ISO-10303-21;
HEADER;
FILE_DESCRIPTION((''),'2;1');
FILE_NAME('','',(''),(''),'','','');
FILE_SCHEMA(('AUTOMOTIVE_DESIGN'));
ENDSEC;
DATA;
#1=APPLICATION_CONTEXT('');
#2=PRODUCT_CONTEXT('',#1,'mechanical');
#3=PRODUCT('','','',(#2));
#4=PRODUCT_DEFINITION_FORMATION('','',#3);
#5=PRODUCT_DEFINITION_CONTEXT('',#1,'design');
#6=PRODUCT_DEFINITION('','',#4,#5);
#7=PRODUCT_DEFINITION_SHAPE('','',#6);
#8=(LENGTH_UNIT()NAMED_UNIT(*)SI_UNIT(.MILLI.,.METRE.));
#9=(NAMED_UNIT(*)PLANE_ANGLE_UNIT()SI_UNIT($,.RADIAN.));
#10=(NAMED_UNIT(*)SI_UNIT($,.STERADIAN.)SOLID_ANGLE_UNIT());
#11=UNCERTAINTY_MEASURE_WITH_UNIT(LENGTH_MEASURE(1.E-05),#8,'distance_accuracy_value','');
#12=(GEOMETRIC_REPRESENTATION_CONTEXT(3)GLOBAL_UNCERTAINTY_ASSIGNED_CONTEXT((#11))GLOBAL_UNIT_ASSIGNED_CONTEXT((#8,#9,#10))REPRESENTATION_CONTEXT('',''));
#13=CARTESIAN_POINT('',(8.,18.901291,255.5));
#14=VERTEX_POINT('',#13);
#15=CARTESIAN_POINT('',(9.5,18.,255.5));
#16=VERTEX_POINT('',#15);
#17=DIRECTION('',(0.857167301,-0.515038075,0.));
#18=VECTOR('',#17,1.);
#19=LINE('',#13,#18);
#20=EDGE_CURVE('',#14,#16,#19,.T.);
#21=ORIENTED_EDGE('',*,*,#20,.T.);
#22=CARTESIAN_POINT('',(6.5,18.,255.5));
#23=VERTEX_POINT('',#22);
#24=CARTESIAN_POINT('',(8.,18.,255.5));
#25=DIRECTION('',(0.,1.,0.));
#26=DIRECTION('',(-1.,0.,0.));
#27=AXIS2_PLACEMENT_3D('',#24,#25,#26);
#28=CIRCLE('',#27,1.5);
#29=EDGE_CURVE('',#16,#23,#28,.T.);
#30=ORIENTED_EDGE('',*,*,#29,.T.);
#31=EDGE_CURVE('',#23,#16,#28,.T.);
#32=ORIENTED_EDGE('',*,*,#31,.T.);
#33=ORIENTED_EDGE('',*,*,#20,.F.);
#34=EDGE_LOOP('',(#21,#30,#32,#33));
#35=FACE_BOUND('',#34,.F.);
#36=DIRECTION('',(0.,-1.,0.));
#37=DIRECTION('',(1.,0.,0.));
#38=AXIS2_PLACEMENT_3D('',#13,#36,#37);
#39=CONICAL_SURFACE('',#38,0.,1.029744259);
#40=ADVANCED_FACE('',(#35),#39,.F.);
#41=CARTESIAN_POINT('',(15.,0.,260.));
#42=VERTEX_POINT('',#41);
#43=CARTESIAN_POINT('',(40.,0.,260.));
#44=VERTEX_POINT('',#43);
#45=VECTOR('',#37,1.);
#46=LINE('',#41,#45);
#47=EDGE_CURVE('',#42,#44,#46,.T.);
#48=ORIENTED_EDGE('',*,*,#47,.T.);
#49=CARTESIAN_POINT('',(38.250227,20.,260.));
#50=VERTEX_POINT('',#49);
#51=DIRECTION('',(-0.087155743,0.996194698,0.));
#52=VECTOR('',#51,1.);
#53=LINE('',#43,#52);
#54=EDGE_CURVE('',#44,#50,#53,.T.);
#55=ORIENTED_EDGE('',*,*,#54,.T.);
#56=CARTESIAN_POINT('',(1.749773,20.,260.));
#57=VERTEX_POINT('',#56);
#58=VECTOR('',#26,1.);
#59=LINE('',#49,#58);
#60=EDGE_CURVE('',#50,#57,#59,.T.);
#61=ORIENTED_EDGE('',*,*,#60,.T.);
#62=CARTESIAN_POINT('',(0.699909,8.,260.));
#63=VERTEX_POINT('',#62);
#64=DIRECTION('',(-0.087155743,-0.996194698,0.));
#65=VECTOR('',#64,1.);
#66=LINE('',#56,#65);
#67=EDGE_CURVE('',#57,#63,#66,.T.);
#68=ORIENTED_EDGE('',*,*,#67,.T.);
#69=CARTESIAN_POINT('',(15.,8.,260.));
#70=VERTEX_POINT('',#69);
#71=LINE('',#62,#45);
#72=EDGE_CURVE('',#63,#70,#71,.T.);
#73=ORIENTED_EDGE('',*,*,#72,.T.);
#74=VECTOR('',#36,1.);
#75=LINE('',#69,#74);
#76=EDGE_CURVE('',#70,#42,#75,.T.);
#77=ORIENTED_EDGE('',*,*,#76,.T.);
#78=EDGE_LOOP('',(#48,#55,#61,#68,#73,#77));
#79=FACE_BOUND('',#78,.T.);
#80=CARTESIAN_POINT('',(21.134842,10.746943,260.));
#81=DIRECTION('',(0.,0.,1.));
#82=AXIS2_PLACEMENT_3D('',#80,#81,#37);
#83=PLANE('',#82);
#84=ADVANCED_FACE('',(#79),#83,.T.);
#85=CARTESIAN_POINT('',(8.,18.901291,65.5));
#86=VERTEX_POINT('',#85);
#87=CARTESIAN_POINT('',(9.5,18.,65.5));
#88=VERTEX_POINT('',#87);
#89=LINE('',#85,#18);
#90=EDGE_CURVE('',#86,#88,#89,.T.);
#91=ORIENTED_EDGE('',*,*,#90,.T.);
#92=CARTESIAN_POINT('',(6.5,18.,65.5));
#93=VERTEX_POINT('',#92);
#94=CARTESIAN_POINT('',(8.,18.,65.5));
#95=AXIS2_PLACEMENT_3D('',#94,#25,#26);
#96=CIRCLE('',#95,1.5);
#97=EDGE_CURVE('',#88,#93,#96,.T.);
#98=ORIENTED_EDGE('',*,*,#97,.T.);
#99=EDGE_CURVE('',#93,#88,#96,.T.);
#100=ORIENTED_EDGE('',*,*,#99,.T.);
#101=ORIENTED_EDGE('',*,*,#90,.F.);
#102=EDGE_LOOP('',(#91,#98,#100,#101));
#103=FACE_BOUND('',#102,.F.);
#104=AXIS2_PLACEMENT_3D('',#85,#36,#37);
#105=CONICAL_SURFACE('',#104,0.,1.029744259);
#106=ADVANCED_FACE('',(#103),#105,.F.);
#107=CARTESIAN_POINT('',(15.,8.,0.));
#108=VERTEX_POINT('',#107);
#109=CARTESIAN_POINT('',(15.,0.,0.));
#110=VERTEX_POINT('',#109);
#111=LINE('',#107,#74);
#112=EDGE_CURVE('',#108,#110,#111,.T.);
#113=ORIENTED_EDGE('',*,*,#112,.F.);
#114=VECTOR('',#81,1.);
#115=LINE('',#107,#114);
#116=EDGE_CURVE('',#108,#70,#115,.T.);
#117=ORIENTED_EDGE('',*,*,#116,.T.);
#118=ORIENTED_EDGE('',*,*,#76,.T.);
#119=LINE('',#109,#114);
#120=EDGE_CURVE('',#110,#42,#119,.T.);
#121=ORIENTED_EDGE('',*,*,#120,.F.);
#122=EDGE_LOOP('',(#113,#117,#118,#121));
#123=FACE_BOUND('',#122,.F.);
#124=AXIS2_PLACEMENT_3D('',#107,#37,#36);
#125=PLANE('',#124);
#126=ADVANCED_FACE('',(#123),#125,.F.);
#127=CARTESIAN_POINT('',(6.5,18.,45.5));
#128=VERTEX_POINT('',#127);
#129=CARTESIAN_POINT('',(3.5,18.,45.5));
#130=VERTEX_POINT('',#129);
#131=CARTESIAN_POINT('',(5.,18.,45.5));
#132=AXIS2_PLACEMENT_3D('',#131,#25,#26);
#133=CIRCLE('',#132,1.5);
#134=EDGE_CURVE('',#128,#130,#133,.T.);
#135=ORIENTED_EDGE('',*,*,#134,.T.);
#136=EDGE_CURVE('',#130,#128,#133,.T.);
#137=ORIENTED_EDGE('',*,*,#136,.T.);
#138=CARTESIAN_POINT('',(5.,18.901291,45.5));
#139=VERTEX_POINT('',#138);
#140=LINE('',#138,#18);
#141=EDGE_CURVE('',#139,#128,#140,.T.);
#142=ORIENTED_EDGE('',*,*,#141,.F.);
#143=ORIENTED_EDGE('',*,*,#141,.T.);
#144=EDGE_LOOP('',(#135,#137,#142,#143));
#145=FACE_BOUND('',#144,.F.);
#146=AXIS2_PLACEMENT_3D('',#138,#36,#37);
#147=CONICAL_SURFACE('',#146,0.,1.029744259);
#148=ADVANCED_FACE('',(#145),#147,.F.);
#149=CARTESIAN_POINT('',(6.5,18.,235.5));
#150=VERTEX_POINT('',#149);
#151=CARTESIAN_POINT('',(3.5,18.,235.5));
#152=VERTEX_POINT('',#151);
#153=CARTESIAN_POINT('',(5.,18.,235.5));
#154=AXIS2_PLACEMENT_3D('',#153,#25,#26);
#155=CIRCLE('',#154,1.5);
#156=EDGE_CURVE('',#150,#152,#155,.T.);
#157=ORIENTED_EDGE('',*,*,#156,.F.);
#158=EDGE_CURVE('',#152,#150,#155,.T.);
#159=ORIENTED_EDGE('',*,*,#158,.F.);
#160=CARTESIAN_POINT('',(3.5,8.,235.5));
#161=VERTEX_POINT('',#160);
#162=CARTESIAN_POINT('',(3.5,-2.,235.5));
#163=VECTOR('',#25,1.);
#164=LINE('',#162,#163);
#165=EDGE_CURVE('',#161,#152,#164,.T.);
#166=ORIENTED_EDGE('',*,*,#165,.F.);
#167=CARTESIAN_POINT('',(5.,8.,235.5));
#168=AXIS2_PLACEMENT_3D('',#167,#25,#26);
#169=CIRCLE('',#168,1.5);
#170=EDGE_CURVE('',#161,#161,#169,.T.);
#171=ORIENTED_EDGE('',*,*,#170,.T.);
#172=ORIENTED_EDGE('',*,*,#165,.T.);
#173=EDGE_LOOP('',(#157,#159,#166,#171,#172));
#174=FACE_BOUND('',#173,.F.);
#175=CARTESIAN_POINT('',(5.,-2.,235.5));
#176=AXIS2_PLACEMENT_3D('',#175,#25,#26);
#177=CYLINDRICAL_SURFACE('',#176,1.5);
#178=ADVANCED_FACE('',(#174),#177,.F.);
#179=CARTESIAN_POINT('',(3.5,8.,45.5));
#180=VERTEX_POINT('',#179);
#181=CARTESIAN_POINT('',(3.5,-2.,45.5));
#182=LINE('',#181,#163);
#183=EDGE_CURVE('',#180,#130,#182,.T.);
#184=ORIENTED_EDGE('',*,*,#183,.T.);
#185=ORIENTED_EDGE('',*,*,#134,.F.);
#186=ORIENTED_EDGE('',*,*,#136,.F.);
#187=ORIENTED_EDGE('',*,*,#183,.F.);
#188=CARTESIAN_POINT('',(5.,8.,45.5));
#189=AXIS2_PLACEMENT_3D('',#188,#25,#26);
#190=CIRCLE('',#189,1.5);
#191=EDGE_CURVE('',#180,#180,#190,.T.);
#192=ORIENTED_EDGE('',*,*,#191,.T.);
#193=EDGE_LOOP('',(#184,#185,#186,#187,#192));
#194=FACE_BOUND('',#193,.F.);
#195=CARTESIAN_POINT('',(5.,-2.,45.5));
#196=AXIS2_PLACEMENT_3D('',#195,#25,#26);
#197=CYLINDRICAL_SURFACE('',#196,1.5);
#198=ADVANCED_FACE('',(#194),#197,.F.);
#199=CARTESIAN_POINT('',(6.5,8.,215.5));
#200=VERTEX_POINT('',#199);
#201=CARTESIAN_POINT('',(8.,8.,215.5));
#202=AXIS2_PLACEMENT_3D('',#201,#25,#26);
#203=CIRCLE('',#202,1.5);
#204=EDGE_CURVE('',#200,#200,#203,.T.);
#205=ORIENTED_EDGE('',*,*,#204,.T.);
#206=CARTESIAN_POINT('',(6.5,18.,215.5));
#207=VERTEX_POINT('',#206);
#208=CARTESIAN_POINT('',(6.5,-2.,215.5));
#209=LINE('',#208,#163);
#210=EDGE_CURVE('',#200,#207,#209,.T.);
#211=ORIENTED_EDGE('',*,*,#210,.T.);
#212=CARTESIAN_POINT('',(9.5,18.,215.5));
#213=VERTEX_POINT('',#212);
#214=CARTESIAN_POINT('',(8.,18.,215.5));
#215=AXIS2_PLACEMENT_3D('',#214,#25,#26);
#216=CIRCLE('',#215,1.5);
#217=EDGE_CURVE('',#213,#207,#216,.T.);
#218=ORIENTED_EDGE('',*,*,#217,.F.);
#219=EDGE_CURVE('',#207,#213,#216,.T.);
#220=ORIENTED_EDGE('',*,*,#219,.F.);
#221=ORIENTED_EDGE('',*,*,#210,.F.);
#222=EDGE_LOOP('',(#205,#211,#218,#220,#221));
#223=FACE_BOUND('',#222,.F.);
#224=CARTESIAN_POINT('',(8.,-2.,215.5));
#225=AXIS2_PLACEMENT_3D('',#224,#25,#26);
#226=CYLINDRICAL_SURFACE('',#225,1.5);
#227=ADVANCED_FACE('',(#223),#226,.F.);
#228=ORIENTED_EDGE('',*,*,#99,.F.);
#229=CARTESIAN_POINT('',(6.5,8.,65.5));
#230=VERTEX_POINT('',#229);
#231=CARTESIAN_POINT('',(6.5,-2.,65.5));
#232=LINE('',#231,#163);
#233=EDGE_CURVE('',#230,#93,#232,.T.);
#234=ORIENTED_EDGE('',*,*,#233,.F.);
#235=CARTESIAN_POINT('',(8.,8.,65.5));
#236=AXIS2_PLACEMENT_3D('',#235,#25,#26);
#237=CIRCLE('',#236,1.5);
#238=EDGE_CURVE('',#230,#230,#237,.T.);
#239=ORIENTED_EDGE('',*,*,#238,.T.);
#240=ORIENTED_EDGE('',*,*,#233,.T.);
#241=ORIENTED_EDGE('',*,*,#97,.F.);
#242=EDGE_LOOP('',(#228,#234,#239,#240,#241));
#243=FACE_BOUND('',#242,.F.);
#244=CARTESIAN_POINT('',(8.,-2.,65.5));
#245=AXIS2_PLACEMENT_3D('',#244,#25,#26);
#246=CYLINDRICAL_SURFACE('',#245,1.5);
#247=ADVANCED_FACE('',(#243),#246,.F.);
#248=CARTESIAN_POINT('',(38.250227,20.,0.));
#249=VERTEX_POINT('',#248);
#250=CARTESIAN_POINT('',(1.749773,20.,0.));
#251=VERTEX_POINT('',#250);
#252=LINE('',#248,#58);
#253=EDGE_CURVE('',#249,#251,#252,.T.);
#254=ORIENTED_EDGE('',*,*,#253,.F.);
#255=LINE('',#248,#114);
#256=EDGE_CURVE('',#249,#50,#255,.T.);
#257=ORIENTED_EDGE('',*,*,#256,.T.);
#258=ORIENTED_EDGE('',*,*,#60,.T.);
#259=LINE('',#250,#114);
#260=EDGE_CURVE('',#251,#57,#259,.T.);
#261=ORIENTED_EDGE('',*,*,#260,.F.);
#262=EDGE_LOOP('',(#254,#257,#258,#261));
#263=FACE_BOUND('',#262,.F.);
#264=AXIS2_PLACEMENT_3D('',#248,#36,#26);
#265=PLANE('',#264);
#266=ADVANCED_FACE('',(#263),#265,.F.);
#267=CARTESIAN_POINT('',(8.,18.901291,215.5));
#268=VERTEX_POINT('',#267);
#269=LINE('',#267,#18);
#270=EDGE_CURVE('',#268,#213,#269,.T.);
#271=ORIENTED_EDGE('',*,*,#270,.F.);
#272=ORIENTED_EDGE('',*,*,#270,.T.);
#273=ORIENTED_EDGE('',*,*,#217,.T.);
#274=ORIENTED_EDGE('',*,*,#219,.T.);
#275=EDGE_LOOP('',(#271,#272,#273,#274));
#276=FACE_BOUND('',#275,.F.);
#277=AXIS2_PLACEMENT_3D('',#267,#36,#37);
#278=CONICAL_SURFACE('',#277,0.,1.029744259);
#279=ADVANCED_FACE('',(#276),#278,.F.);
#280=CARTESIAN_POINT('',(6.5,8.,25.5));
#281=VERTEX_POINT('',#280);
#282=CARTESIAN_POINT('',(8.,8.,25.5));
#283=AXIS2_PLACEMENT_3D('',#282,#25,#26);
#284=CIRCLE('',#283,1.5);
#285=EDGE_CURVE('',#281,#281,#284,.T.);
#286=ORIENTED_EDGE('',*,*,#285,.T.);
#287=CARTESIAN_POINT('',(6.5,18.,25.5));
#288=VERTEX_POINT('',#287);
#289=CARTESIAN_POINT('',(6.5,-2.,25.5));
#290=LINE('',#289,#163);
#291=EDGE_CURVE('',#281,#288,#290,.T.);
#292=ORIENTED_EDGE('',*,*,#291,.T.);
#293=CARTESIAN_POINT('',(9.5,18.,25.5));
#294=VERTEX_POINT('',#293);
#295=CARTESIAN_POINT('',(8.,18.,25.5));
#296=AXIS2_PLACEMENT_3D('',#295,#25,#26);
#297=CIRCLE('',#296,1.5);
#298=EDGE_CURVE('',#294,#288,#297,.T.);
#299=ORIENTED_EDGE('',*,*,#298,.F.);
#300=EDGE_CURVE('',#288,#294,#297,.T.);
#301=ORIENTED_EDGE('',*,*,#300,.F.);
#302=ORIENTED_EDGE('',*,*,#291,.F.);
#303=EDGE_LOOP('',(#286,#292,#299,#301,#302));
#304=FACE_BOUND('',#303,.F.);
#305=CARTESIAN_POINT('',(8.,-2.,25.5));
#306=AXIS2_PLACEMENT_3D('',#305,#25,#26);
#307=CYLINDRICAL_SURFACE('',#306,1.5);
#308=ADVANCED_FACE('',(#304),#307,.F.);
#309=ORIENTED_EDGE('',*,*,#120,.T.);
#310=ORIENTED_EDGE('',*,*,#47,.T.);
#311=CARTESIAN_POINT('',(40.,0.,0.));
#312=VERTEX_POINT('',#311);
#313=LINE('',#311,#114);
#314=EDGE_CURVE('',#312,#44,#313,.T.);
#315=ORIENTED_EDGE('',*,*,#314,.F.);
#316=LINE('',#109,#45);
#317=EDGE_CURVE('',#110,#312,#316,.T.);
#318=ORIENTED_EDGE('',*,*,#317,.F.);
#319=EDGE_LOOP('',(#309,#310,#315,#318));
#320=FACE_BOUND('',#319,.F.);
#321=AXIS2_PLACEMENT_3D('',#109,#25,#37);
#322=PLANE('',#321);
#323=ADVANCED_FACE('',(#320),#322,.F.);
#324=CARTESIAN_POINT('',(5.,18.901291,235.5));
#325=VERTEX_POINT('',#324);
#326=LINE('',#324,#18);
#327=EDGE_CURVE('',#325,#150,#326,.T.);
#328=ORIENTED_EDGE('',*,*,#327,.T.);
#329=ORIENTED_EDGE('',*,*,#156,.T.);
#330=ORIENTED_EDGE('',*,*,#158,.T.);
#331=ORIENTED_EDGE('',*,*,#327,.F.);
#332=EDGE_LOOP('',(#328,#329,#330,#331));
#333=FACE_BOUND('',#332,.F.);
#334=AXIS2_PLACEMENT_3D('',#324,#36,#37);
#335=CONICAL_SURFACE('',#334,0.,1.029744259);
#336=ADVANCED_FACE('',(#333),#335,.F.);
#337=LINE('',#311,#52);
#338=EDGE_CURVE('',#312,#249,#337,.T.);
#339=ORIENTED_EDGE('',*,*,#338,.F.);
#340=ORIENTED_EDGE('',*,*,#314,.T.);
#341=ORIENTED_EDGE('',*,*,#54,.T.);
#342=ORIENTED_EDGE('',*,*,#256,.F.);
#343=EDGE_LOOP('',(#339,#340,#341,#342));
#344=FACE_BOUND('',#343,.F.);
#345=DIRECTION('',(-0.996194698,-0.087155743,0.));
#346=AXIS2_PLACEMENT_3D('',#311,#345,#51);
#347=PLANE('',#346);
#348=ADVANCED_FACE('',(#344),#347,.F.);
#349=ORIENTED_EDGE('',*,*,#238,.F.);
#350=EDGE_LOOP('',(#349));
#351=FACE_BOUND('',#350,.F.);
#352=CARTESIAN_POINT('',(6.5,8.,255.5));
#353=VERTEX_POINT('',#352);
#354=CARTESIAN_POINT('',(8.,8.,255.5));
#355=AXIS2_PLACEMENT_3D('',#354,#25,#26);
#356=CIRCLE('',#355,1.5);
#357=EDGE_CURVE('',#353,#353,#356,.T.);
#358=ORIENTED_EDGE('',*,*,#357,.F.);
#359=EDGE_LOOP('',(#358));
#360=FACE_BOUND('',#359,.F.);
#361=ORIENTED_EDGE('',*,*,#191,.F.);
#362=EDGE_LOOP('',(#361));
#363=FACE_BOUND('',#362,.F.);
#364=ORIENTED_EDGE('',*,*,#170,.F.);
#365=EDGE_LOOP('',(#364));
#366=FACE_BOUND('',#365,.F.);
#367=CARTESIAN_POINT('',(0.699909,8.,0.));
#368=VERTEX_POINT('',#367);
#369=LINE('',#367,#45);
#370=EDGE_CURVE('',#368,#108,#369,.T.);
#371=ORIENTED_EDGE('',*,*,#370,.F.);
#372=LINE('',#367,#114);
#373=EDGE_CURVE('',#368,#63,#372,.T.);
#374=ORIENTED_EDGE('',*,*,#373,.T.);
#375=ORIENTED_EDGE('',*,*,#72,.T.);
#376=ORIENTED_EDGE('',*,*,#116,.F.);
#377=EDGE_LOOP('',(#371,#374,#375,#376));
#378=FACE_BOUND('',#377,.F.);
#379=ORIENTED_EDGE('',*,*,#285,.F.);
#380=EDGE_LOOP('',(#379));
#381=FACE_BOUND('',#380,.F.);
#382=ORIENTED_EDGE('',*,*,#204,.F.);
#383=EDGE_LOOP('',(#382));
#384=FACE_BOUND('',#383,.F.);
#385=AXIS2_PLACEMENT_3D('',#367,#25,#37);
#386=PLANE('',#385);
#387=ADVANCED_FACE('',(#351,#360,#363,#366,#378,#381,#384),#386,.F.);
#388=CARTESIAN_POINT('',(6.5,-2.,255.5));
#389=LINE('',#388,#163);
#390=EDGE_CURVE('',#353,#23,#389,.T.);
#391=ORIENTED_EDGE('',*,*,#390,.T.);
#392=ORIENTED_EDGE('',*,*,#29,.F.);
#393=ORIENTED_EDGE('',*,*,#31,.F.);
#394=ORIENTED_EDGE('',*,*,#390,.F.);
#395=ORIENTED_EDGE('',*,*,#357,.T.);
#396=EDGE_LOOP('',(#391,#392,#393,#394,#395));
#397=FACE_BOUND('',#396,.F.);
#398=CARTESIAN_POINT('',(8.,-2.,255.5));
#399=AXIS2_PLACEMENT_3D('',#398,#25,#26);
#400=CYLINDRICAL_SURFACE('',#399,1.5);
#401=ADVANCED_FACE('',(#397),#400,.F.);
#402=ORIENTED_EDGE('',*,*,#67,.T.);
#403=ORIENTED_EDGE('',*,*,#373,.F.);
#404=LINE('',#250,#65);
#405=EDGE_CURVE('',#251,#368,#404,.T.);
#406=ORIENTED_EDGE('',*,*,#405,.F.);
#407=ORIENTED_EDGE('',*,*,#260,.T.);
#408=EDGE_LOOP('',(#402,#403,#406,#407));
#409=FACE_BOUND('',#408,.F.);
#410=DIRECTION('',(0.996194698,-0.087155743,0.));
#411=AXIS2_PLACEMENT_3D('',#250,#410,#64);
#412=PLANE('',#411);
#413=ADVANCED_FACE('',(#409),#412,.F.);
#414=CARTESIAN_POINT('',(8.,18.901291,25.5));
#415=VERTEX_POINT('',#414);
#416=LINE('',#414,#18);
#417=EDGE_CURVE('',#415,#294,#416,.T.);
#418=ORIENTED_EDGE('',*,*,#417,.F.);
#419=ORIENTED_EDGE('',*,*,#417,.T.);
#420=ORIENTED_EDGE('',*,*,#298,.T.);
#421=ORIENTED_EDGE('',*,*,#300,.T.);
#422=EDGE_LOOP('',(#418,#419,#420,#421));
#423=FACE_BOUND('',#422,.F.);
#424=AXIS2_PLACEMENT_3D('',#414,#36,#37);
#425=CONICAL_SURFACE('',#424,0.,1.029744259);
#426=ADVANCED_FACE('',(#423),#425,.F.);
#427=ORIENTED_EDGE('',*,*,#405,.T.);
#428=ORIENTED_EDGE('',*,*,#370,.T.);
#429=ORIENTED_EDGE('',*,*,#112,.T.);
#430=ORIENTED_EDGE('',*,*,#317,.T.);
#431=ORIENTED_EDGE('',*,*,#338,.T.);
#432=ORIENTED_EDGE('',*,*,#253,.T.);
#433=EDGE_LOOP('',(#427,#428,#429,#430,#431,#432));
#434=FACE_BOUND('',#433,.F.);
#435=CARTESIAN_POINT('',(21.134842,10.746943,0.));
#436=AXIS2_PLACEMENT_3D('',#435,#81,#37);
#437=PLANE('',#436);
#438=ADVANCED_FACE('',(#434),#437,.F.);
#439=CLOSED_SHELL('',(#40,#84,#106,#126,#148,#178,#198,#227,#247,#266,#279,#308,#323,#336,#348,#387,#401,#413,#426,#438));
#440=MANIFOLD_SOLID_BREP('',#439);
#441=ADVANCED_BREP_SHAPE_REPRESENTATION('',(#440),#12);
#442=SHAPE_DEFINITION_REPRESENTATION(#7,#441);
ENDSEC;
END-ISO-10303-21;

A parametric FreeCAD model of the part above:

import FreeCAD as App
import Part
import Sketcher
Q = App.Units.Quantity

doc = App.newDocument("Part")
body = doc.addObject("PartDesign::Body", "Body")

# Sketch on XY plane
sketch1 = body.newObject("Sketcher::SketchObject", "Sketch")
sketch1.AttachmentSupport = (doc.getObject("XY_Plane"), [""])
sketch1.MapMode = "FlatFace"
sketch1.addGeometry([
    Part.LineSegment(App.Vector(2, 20, 0), App.Vector(1, 8, 0)),  # 0
    Part.LineSegment(App.Vector(1, 8, 0), App.Vector(15, 8, 0)),  # 1
    Part.LineSegment(App.Vector(15, 8, 0), App.Vector(15, 0, 0)),  # 2
    Part.LineSegment(App.Vector(15, 0, 0), App.Vector(40, 0, 0)),  # 3
    Part.LineSegment(App.Vector(40, 0, 0), App.Vector(38, 20, 0)),  # 4
    Part.LineSegment(App.Vector(38, 20, 0), App.Vector(2, 20, 0)),  # 5
], False)
sketch1.addConstraint([
    Sketcher.Constraint("Coincident", 0, 2, 1, 1),
    Sketcher.Constraint("Coincident", 1, 2, 2, 1),
    Sketcher.Constraint("Coincident", 2, 2, 3, 1),
    Sketcher.Constraint("Coincident", 3, 2, 4, 1),
    Sketcher.Constraint("Coincident", 4, 2, 5, 1),
    Sketcher.Constraint("Coincident", 5, 2, 0, 1),
    Sketcher.Constraint("Horizontal", 1),
    Sketcher.Constraint("Vertical", 2),
    Sketcher.Constraint("Horizontal", 3),
    Sketcher.Constraint("Horizontal", 5),
    Sketcher.Constraint("PointOnObject", 2, 2, -1),
    Sketcher.Constraint("DistanceX", 3, 1, 3, 2, 25.0),
    Sketcher.Constraint("DistanceY", 2, 2, 2, 1, 8.0),
    Sketcher.Constraint("Angle", 0, Q("-95 deg")),
    Sketcher.Constraint("Angle", 4, Q("95 deg")),
    Sketcher.Constraint("DistanceX", -1, 1, 1, 2, 15.0),
    Sketcher.Constraint("DistanceY", -1, 1, 4, 2, 20.0),
    Sketcher.Constraint("DistanceX", 1, 1, 1, 2, 14.300091),
])
pad1 = body.newObject("PartDesign::Pad", "Pad")
pad1.Profile = sketch1
pad1.Length = 260

# Sketch on XZ plane
sketch2 = body.newObject("Sketcher::SketchObject", "Sketch001")
sketch2.AttachmentSupport = (doc.getObject("XZ_Plane"), [""])
sketch2.MapMode = "FlatFace"
sketch2.AttachmentOffset = App.Placement(App.Vector(0, 0, -8), App.Rotation())
sketch2.addGeometry([
    Part.Circle(App.Vector(8, 255.5, 0), App.Vector(0, 0, 1), 1.5),  # 0
    Part.Circle(App.Vector(5, 235.5, 0), App.Vector(0, 0, 1), 1.5),  # 1
    Part.Circle(App.Vector(8, 215.5, 0), App.Vector(0, 0, 1), 1.5),  # 2
    Part.Circle(App.Vector(8, 65.5, 0), App.Vector(0, 0, 1), 1.5),  # 3
    Part.Circle(App.Vector(5, 45.5, 0), App.Vector(0, 0, 1), 1.5),  # 4
    Part.Circle(App.Vector(8, 25.5, 0), App.Vector(0, 0, 1), 1.5),  # 5
], False)
sketch2.addConstraint([
    Sketcher.Constraint("Equal", 0, 1),
    Sketcher.Constraint("Equal", 1, 2),
    Sketcher.Constraint("Equal", 2, 3),
    Sketcher.Constraint("Equal", 3, 4),
    Sketcher.Constraint("Equal", 4, 5),
    Sketcher.Constraint("Vertical", 0, 3, 2, 3),
    Sketcher.Constraint("Vertical", 2, 3, 3, 3),
    Sketcher.Constraint("Vertical", 1, 3, 4, 3),
    Sketcher.Constraint("Vertical", 3, 3, 5, 3),
    Sketcher.Constraint("Diameter", 0, 3.0),
    Sketcher.Constraint("DistanceX", -1, 1, 0, 3, 8.0),
    Sketcher.Constraint("DistanceX", -1, 1, 1, 3, 5.0),
    Sketcher.Constraint("DistanceY", 1, 3, 0, 3, 20.0),
    Sketcher.Constraint("DistanceY", 2, 3, 1, 3, 20.0),
    Sketcher.Constraint("DistanceY", 3, 3, 2, 3, 150.0),
    Sketcher.Constraint("DistanceY", 4, 3, 3, 3, 20.0),
    Sketcher.Constraint("DistanceY", 5, 3, 4, 3, 20.0),
    Sketcher.Constraint("DistanceY", -1, 1, 0, 3, 255.5),
])
doc.recompute()
hole = body.newObject("PartDesign::Hole", "Hole")
hole.Profile = sketch2
hole.ThreadType = "None"
hole.Diameter = 3
hole.DepthType = "Dimension"
hole.Depth = 10
hole.DrillPoint = "Angled"
hole.DrillPointAngle = 118

doc.recompute()
